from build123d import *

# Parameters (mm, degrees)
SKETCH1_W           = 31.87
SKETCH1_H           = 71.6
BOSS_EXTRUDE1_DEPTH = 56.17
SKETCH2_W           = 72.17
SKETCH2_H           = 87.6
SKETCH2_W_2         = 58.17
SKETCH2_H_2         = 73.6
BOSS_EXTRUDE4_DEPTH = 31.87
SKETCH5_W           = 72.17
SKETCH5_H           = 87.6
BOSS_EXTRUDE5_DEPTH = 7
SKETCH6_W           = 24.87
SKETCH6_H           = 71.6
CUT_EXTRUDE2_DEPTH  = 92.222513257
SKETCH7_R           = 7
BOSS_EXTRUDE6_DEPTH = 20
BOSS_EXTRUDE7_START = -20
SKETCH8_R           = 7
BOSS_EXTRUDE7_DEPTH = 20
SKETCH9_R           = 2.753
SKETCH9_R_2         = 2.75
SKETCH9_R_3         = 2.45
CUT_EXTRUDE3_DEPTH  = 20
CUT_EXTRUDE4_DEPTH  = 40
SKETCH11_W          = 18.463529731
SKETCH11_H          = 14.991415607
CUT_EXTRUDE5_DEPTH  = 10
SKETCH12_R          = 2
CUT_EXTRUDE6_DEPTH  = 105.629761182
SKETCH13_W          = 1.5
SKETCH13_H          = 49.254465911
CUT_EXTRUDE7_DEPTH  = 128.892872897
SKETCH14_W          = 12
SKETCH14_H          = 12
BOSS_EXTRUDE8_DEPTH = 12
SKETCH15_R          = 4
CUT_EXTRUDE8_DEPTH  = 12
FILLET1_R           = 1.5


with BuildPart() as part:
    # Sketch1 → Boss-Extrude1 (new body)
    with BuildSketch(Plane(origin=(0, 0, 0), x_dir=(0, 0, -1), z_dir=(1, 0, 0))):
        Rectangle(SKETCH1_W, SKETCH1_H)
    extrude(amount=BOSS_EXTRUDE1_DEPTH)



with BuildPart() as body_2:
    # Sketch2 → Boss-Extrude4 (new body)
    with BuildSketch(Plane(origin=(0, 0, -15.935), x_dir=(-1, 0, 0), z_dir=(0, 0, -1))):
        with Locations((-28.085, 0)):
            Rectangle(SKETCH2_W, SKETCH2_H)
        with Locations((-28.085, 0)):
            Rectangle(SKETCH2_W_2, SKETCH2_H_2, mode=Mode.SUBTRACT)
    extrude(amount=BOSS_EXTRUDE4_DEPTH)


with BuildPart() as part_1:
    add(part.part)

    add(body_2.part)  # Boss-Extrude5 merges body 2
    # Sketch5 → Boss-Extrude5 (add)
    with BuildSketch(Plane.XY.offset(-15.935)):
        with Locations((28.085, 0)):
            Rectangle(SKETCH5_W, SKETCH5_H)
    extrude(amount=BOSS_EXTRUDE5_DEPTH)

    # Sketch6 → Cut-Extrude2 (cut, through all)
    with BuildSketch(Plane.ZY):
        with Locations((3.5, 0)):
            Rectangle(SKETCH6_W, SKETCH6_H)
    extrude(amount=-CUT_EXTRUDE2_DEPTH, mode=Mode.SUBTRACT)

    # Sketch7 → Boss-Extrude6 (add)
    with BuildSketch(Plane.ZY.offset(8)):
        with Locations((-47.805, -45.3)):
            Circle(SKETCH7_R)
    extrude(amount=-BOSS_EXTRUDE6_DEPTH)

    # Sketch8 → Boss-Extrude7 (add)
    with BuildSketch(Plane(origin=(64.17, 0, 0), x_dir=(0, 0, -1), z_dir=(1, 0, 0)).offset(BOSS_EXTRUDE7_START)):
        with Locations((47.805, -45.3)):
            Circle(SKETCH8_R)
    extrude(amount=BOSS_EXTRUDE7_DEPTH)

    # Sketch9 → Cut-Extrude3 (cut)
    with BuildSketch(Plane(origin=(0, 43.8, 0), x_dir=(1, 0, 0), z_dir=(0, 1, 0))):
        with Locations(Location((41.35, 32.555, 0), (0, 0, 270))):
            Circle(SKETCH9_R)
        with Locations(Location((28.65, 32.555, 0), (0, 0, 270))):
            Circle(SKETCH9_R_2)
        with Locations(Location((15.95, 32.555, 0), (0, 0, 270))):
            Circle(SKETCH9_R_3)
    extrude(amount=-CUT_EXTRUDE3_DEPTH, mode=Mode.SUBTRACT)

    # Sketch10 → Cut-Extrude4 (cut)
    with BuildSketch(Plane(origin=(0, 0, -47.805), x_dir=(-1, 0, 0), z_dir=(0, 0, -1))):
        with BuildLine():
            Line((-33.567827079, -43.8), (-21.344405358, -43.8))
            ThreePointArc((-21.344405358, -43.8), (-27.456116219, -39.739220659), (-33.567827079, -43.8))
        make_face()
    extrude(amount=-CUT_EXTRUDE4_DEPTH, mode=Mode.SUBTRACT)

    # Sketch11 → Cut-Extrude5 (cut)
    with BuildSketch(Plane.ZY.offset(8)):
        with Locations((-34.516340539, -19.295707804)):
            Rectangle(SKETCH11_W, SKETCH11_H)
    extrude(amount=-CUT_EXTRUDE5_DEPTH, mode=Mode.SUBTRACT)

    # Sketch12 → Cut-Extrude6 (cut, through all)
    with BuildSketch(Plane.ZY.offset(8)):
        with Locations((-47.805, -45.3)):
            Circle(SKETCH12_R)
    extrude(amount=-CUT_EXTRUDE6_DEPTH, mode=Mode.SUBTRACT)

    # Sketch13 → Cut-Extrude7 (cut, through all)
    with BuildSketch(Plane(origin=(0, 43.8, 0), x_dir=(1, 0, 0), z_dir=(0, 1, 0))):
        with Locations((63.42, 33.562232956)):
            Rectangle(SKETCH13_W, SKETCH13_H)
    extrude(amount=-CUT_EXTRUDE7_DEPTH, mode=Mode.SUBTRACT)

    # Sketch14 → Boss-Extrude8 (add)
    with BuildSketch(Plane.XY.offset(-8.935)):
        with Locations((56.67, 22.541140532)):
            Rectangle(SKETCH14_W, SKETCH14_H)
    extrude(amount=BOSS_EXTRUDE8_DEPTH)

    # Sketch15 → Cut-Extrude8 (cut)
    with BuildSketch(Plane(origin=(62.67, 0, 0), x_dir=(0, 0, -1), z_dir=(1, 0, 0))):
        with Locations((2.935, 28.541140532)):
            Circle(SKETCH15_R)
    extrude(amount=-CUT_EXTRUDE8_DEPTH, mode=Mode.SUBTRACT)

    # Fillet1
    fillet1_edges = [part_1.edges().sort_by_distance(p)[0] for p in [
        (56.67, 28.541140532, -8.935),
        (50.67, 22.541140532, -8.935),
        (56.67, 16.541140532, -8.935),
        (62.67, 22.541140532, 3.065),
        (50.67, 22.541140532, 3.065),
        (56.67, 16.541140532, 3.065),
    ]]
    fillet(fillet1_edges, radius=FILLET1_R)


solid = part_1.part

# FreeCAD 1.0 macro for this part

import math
import FreeCAD as App
import Part
import Sketcher
from FreeCAD import Vector
Q = App.Units.Quantity


def edges_at(feature, points):
    """Names of the edges that pass closest to the given points."""
    edges = feature.Shape.Edges
    near = lambda p: min(range(len(edges)), key=lambda i: edges[i].distToShape(Part.Vertex(*p))[0])
    return sorted({f"Edge{near(p) + 1}" for p in points})


def add_polygon(sketch, points):
    """Adds a closed chain of lines whose ends are joined by coincident constraints."""
    first, n = sketch.GeometryCount, len(points)
    for a, b in zip(points, points[1:] + points[:1]):
        sketch.addGeometry(Part.LineSegment(App.Vector(*a, 0), App.Vector(*b, 0)), False)
    for i in range(n):
        sketch.addConstraint(Sketcher.Constraint("Coincident", first + i, 2, first + (i + 1) % n, 1))

doc = App.newDocument("Part")
params = doc.addObject("Spreadsheet::Sheet", "Params")
for row, (alias, value) in enumerate([
    ("sketch1_width", "71.6 mm"),
    ("sketch1_height", "31.87 mm"),
    ("pad1_length", "56.17 mm"),
    ("sketch2_height", "87.6 mm"),
    ("sketch2_height2", "73.6 mm"),
    ("sketch2_width", "72.17 mm"),
    ("pad2_length", "31.87 mm"),
    ("sketch3_height", "87.6 mm"),
    ("sketch3_width", "72.17 mm"),
    ("pad3_length", "7 mm"),
    ("sketch4_width", "71.6 mm"),
    ("sketch4_height", "24.87 mm"),
    ("sketch5_diameter", "14 mm"),
    ("pad4_length", "20 mm"),
    ("sketch6_diameter", "14 mm"),
    ("pad5_length", "20 mm"),
    ("sketch7_diameter", "5.5 mm"),
    ("sketch7_diameter2", "4.9 mm"),
    ("pocket2_length", "20 mm"),
    ("pocket3_length", "40 mm"),
    ("pocket4_length", "10 mm"),
    ("sketch10_diameter", "4 mm"),
    ("sketch11_width", "1.5 mm"),
    ("sketch12_width", "12 mm"),
    ("pad6_length", "12 mm"),
    ("sketch13_diameter", "8 mm"),
    ("pocket7_length", "12 mm"),
    ("fillet_radius", "1.5 mm"),
], start=1):
    params.set(f"A{row}", alias)
    params.set(f"B{row}", "=" + value)
    params.setAlias(f"B{row}", alias)

body = doc.addObject("PartDesign::Body", "Body")

sketch1 = doc.addObject("Sketcher::SketchObject", "Sketch")
body.addObject(sketch1)
sketch1.AttachmentSupport = (doc.YZ_Plane, [""])
sketch1.MapMode = "FlatFace"
add_polygon(sketch1, [(36, 16), (-36, 16), (-36, -16), (36, -16)])
sketch1.addConstraint([
    Sketcher.Constraint("Horizontal", 0),
    Sketcher.Constraint("Vertical", 1),
    Sketcher.Constraint("Horizontal", 2),
    Sketcher.Constraint("Vertical", 3),
    Sketcher.Constraint("Symmetric", 0, 2, 2, 2, -1, 1),
    Sketcher.Constraint("DistanceX", 0, 2, 0, 1, Q("71.6 mm")),
    Sketcher.Constraint("DistanceY", 1, 2, 1, 1, Q("31.87 mm")),
])
sketch1.setExpression("Constraints[9]", "Params.sketch1_width")
sketch1.setExpression("Constraints[10]", "Params.sketch1_height")
pad1 = doc.addObject("PartDesign::Pad", "Pad")
body.addObject(pad1)
pad1.Profile = sketch1
pad1.setExpression("Length", "Params.pad1_length")
body2 = doc.addObject("PartDesign::Body", "Body001")

sketch2 = doc.addObject("Sketcher::SketchObject", "Sketch001")
body2.addObject(sketch2)
sketch2.AttachmentSupport = (doc.getObject("XY_Plane001"), [""])
sketch2.MapMode = "FlatFace"
sketch2.AttachmentOffset = App.Placement(Vector(0, 0, -15.935), App.Rotation())
add_polygon(sketch2, [(64, 44), (64, -44), (-8, -44), (-8, 44)])
add_polygon(sketch2, [(-1, -37), (57, -37), (57, 37), (-1, 37)])
sketch2.addConstraint([
    Sketcher.Constraint("Vertical", 0),
    Sketcher.Constraint("Horizontal", 1),
    Sketcher.Constraint("Vertical", 2),
    Sketcher.Constraint("Horizontal", 3),
    Sketcher.Constraint("Horizontal", 4),
    Sketcher.Constraint("Vertical", 5),
    Sketcher.Constraint("Horizontal", 6),
    Sketcher.Constraint("Vertical", 7),
    Sketcher.Constraint("DistanceY", 0, 2, 0, 1, Q("87.6 mm")),
    Sketcher.Constraint("DistanceY", 5, 1, 5, 2, Q("73.6 mm")),
    Sketcher.Constraint("DistanceX", 1, 2, -1, 1, Q("8 mm")),
    Sketcher.Constraint("DistanceX", 6, 2, -1, 1, Q("1 mm")),
    Sketcher.Constraint("DistanceX", 4, 2, 0, 2, Q("7 mm")),
    Sketcher.Constraint("DistanceY", 0, 2, 4, 2, Q("7 mm")),
    Sketcher.Constraint("DistanceX", 1, 2, 1, 1, Q("72.17 mm")),
    Sketcher.Constraint("DistanceY", 0, 2, -1, 1, Q("43.8 mm")),
])
sketch2.setExpression("Constraints[16]", "Params.sketch2_height")
sketch2.setExpression("Constraints[17]", "Params.sketch2_height2")
sketch2.setExpression("Constraints[22]", "Params.sketch2_width")
pad2 = doc.addObject("PartDesign::Pad", "Pad001")
body2.addObject(pad2)
pad2.Profile = sketch2
pad2.setExpression("Length", "Params.pad2_length")
pad2.Reversed = True
body.AllowCompound = True
doc.recompute()

boolean = doc.addObject("PartDesign::Boolean", "Boolean")
body.addObject(boolean)
boolean.Type = "Fuse"
boolean.addObjects([body2])

sketch3 = doc.addObject("Sketcher::SketchObject", "Sketch002")
body.addObject(sketch3)
sketch3.AttachmentSupport = (doc.XY_Plane, [""])
sketch3.MapMode = "FlatFace"
sketch3.AttachmentOffset = App.Placement(Vector(0, 0, -15.935), App.Rotation())
add_polygon(sketch3, [(-8, 44), (-8, -44), (64, -44), (64, 44)])
sketch3.addConstraint([
    Sketcher.Constraint("Vertical", 0),
    Sketcher.Constraint("Horizontal", 1),
    Sketcher.Constraint("Vertical", 2),
    Sketcher.Constraint("Horizontal", 3),
    Sketcher.Constraint("DistanceY", 0, 2, 0, 1, Q("87.6 mm")),
    Sketcher.Constraint("DistanceX", 0, 2, -1, 1, Q("8 mm")),
    Sketcher.Constraint("DistanceX", 1, 1, 1, 2, Q("72.17 mm")),
    Sketcher.Constraint("DistanceY", 0, 2, -1, 1, Q("43.8 mm")),
])
sketch3.setExpression("Constraints[8]", "Params.sketch3_height")
sketch3.setExpression("Constraints[10]", "Params.sketch3_width")
pad3 = doc.addObject("PartDesign::Pad", "Pad002")
body.addObject(pad3)
pad3.Profile = sketch3
pad3.setExpression("Length", "Params.pad3_length")

sketch4 = doc.addObject("Sketcher::SketchObject", "Sketch003")
body.addObject(sketch4)
sketch4.AttachmentSupport = (doc.YZ_Plane, [""])
sketch4.MapMode = "FlatFace"
add_polygon(sketch4, [(36, -9), (-36, -9), (-36, 16), (36, 16)])
sketch4.addConstraint([
    Sketcher.Constraint("Horizontal", 0),
    Sketcher.Constraint("Vertical", 1),
    Sketcher.Constraint("Horizontal", 2),
    Sketcher.Constraint("Vertical", 3),
    Sketcher.Constraint("DistanceX", 0, 2, 0, 1, Q("71.6 mm")),
    Sketcher.Constraint("DistanceY", 1, 1, 1, 2, Q("24.87 mm")),
    Sketcher.Constraint("DistanceX", 0, 2, -1, 1, Q("35.8 mm")),
    Sketcher.Constraint("DistanceY", 0, 2, -1, 1, Q("8.935 mm")),
])
sketch4.setExpression("Constraints[8]", "Params.sketch4_width")
sketch4.setExpression("Constraints[9]", "Params.sketch4_height")
pocket1 = doc.addObject("PartDesign::Pocket", "Pocket")
body.addObject(pocket1)
pocket1.Profile = sketch4
pocket1.Type = "ThroughAll"
pocket1.Reversed = True

sketch5 = doc.addObject("Sketcher::SketchObject", "Sketch004")
body.addObject(sketch5)
sketch5.AttachmentSupport = (doc.YZ_Plane, [""])
sketch5.MapMode = "FlatFace"
sketch5.AttachmentOffset = App.Placement(Vector(0, 0, -8), App.Rotation())
sketch5.addGeometry(Part.Circle(Vector(-45, -48, 0), Vector(0, 0, 1), 7), False)
sketch5.addConstraint([
    Sketcher.Constraint("Diameter", 0, Q("14 mm")),
    Sketcher.Constraint("DistanceX", 0, 3, -1, 1, Q("45.3 mm")),
    Sketcher.Constraint("DistanceY", 0, 3, -1, 1, Q("47.805 mm")),
])
sketch5.setExpression("Constraints[0]", "Params.sketch5_diameter")
pad4 = doc.addObject("PartDesign::Pad", "Pad003")
body.addObject(pad4)
pad4.Profile = sketch5
pad4.setExpression("Length", "Params.pad4_length")

sketch6 = doc.addObject("Sketcher::SketchObject", "Sketch005")
body.addObject(sketch6)
sketch6.AttachmentSupport = (doc.YZ_Plane, [""])
sketch6.MapMode = "FlatFace"
sketch6.AttachmentOffset = App.Placement(Vector(0, 0, 44.17), App.Rotation())
sketch6.addGeometry(Part.Circle(Vector(-45, -48, 0), Vector(0, 0, 1), 7), False)
sketch6.addConstraint([
    Sketcher.Constraint("Diameter", 0, Q("14 mm")),
    Sketcher.Constraint("DistanceX", 0, 3, -1, 1, Q("45.3 mm")),
    Sketcher.Constraint("DistanceY", 0, 3, -1, 1, Q("47.805 mm")),
])
sketch6.setExpression("Constraints[0]", "Params.sketch6_diameter")
pad5 = doc.addObject("PartDesign::Pad", "Pad004")
body.addObject(pad5)
pad5.Profile = sketch6
pad5.setExpression("Length", "Params.pad5_length")

sketch7 = doc.addObject("Sketcher::SketchObject", "Sketch006")
body.addObject(sketch7)
sketch7.AttachmentSupport = (doc.XZ_Plane, [""])
sketch7.MapMode = "FlatFace"
sketch7.AttachmentOffset = App.Placement(Vector(0, 0, -43.8), App.Rotation())
sketch7.addGeometry([
    Part.Circle(Vector(41.4, -32.6, 0), Vector(0, 0, 1), 2.8),
    Part.Circle(Vector(28.6, -32.6, 0), Vector(0, 0, 1), 2.8),
    Part.Circle(Vector(15.9, -32.6, 0), Vector(0, 0, 1), 2.5),
], False)
sketch7.addConstraint([
    Sketcher.Constraint("Horizontal", 0, 3, 1, 3),
    Sketcher.Constraint("Horizontal", 1, 3, 2, 3),
    Sketcher.Constraint("Diameter", 1, Q("5.5 mm")),
    Sketcher.Constraint("Diameter", 2, Q("4.9 mm")),
    Sketcher.Constraint("Diameter", 0, Q("5.506 mm")),
    Sketcher.Constraint("DistanceX", 1, 3, 0, 3, Q("12.7 mm")),
    Sketcher.Constraint("DistanceX", 2, 3, 1, 3, Q("12.7 mm")),
    Sketcher.Constraint("DistanceX", -1, 1, 0, 3, Q("41.35 mm")),
    Sketcher.Constraint("DistanceY", 0, 3, -1, 1, Q("32.555 mm")),
])
sketch7.setExpression("Constraints[2]", "Params.sketch7_diameter")
sketch7.setExpression("Constraints[3]", "Params.sketch7_diameter2")
pocket2 = doc.addObject("PartDesign::Pocket", "Pocket001")
body.addObject(pocket2)
pocket2.Profile = sketch7
pocket2.setExpression("Length", "Params.pocket2_length")
pocket2.Reversed = True

sketch8 = doc.addObject("Sketcher::SketchObject", "Sketch007")
body.addObject(sketch8)
sketch8.AttachmentSupport = (doc.XY_Plane, [""])
sketch8.MapMode = "FlatFace"
sketch8.AttachmentOffset = App.Placement(Vector(0, 0, -47.805), App.Rotation())
sketch8.addGeometry([
    Part.LineSegment(Vector(34, -44, 0), Vector(21, -44, 0)),
    Part.ArcOfCircle(Part.Circle(Vector(27, -46, 0), Vector(0, 0, 1), 7), math.radians(23), math.radians(157)),
], False)
sketch8.addConstraint([
    Sketcher.Constraint("Coincident", 0, 1, 1, 1),
    Sketcher.Constraint("Coincident", 1, 2, 0, 2),
    Sketcher.Constraint("Horizontal", 0),
    Sketcher.Constraint("DistanceY", 0, 1, -1, 1, Q("43.8 mm")),
    Sketcher.Constraint("Radius", 1, Q("6.629631 mm")),
    Sketcher.Constraint("DistanceX", 0, 2, 0, 1, Q("12.223422 mm")),
    Sketcher.Constraint("DistanceX", -1, 1, 1, 3, Q("27.456116 mm")),
])
pocket3 = doc.addObject("PartDesign::Pocket", "Pocket002")
body.addObject(pocket3)
pocket3.Profile = sketch8
pocket3.setExpression("Length", "Params.pocket3_length")
pocket3.Reversed = True

sketch9 = doc.addObject("Sketcher::SketchObject", "Sketch008")
body.addObject(sketch9)
sketch9.AttachmentSupport = (doc.YZ_Plane, [""])
sketch9.MapMode = "FlatFace"
sketch9.AttachmentOffset = App.Placement(Vector(0, 0, -8), App.Rotation())
add_polygon(sketch9, [(-12, -44), (-27, -44), (-27, -25), (-12, -25)])
sketch9.addConstraint([
    Sketcher.Constraint("Horizontal", 0),
    Sketcher.Constraint("Vertical", 1),
    Sketcher.Constraint("Horizontal", 2),
    Sketcher.Constraint("Vertical", 3),
    Sketcher.Constraint("DistanceX", 2, 2, -1, 1, Q("11.8 mm")),
    Sketcher.Constraint("DistanceY", 1, 1, 1, 2, Q("18.46353 mm")),
    Sketcher.Constraint("DistanceX", 0, 2, 0, 1, Q("14.991416 mm")),
    Sketcher.Constraint("DistanceY", 0, 2, -1, 1, Q("43.748105 mm")),
])
pocket4 = doc.addObject("PartDesign::Pocket", "Pocket003")
body.addObject(pocket4)
pocket4.Profile = sketch9
pocket4.setExpression("Length", "Params.pocket4_length")
pocket4.Reversed = True

sketch10 = doc.addObject("Sketcher::SketchObject", "Sketch009")
body.addObject(sketch10)
sketch10.AttachmentSupport = (doc.YZ_Plane, [""])
sketch10.MapMode = "FlatFace"
sketch10.AttachmentOffset = App.Placement(Vector(0, 0, -8), App.Rotation())
sketch10.addGeometry(Part.Circle(Vector(-45.3, -47.8, 0), Vector(0, 0, 1), 2), False)
sketch10.addConstraint([
    Sketcher.Constraint("Diameter", 0, Q("4 mm")),
    Sketcher.Constraint("DistanceX", 0, 3, -1, 1, Q("45.3 mm")),
    Sketcher.Constraint("DistanceY", 0, 3, -1, 1, Q("47.805 mm")),
])
sketch10.setExpression("Constraints[0]", "Params.sketch10_diameter")
pocket5 = doc.addObject("PartDesign::Pocket", "Pocket004")
body.addObject(pocket5)
pocket5.Profile = sketch10
pocket5.Type = "ThroughAll"
pocket5.Reversed = True

sketch11 = doc.addObject("Sketcher::SketchObject", "Sketch010")
body.addObject(sketch11)
sketch11.AttachmentSupport = (doc.XZ_Plane, [""])
sketch11.MapMode = "FlatFace"
sketch11.AttachmentOffset = App.Placement(Vector(0, 0, -43.8), App.Rotation())
add_polygon(sketch11, [(62.7, -58.2), (62.7, -8.9), (64.2, -8.9), (64.2, -58.2)])
sketch11.addConstraint([
    Sketcher.Constraint("Vertical", 0),
    Sketcher.Constraint("Horizontal", 1),
    Sketcher.Constraint("Vertical", 2),
    Sketcher.Constraint("Horizontal", 3),
    Sketcher.Constraint("DistanceX", 1, 1, 1, 2, Q("1.5 mm")),
    Sketcher.Constraint("DistanceX", -1, 1, 0, 2, Q("62.67 mm")),
    Sketcher.Constraint("DistanceY", 0, 2, -1, 1, Q("8.935 mm")),
    Sketcher.Constraint("DistanceY", 0, 1, 0, 2, Q("49.254466 mm")),
])
sketch11.setExpression("Constraints[8]", "Params.sketch11_width")
pocket6 = doc.addObject("PartDesign::Pocket", "Pocket005")
body.addObject(pocket6)
pocket6.Profile = sketch11
pocket6.Type = "ThroughAll"
pocket6.Reversed = True

sketch12 = doc.addObject("Sketcher::SketchObject", "Sketch011")
body.addObject(sketch12)
sketch12.AttachmentSupport = (doc.XY_Plane, [""])
sketch12.MapMode = "FlatFace"
sketch12.AttachmentOffset = App.Placement(Vector(0, 0, -8.935), App.Rotation())
add_polygon(sketch12, [(51, 29), (51, 17), (63, 17), (63, 29)])
sketch12.addConstraint([
    Sketcher.Constraint("Vertical", 0),
    Sketcher.Constraint("Horizontal", 1),
    Sketcher.Constraint("Vertical", 2),
    Sketcher.Constraint("Horizontal", 3),
    Sketcher.Constraint("Equal", 3, 0),
    Sketcher.Constraint("DistanceX", 1, 1, 1, 2, Q("12 mm")),
    Sketcher.Constraint("DistanceX", -1, 1, 0, 2, Q("50.67 mm")),
    Sketcher.Constraint("DistanceY", -1, 1, 0, 2, Q("16.541141 mm")),
])
sketch12.setExpression("Constraints[9]", "Params.sketch12_width")
pad6 = doc.addObject("PartDesign::Pad", "Pad005")
body.addObject(pad6)
pad6.Profile = sketch12
pad6.setExpression("Length", "Params.pad6_length")

sketch13 = doc.addObject("Sketcher::SketchObject", "Sketch012")
body.addObject(sketch13)
sketch13.AttachmentSupport = (doc.YZ_Plane, [""])
sketch13.MapMode = "FlatFace"
sketch13.AttachmentOffset = App.Placement(Vector(0, 0, 62.67), App.Rotation())
sketch13.addGeometry(Part.Circle(Vector(28.5, -2.9, 0), Vector(0, 0, 1), 4), False)
sketch13.addConstraint([
    Sketcher.Constraint("Diameter", 0, Q("8 mm")),
    Sketcher.Constraint("DistanceY", 0, 3, -1, 1, Q("2.935 mm")),
    Sketcher.Constraint("DistanceX", -1, 1, 0, 3, Q("28.541141 mm")),
])
sketch13.setExpression("Constraints[0]", "Params.sketch13_diameter")
pocket7 = doc.addObject("PartDesign::Pocket", "Pocket006")
body.addObject(pocket7)
pocket7.Profile = sketch13
pocket7.setExpression("Length", "Params.pocket7_length")
doc.recompute()

fillet = doc.addObject("PartDesign::Fillet", "Fillet")
body.addObject(fillet)
fillet.Base = (pocket7, edges_at(pocket7, [
    (56.67, 28.541, -8.935),
    (50.67, 22.541, -8.935),
    (56.67, 16.541, -8.935),
    (62.67, 22.541, 3.065),
    (50.67, 22.541, 3.065),
    (56.67, 16.541, 3.065),
]))
fillet.setExpression("Radius", "Params.fillet_radius")

doc.recompute()
